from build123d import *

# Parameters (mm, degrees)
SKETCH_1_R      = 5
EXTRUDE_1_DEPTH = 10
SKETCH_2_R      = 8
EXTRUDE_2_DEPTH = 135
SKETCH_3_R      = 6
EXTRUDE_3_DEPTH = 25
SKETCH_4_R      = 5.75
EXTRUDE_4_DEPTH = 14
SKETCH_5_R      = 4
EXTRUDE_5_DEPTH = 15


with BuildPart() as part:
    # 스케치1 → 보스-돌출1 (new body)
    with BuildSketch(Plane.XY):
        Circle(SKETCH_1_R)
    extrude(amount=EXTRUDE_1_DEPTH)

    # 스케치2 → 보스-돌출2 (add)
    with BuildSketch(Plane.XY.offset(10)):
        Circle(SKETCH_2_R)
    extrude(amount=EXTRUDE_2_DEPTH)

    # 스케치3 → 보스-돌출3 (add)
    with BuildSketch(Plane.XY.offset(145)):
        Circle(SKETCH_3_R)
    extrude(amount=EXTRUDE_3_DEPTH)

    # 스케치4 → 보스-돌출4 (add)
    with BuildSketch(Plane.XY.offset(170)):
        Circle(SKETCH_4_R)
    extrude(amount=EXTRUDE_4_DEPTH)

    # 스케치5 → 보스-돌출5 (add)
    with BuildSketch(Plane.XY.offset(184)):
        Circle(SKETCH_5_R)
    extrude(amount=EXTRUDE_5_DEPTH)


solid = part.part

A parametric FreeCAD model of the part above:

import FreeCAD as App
import Part
import Sketcher
Q = App.Units.Quantity

doc = App.newDocument("Part")
params = doc.addObject("Spreadsheet::Sheet", "Params")
for row, (alias, value) in enumerate([
    ("sketch1_diameter", "10 mm"),
    ("pad1_length", "10 mm"),
    ("sketch2_diameter", "16 mm"),
    ("pad2_length", "135 mm"),
    ("sketch3_diameter", "12 mm"),
    ("pad3_length", "25 mm"),
    ("sketch4_diameter", "11.5 mm"),
    ("pad4_length", "14 mm"),
    ("sketch5_diameter", "8 mm"),
    ("pad5_length", "15 mm"),
], start=1):
    params.set(f"A{row}", alias)
    params.set(f"B{row}", "=" + value)
    params.setAlias(f"B{row}", alias)

body = doc.addObject("PartDesign::Body", "Body")

sketch1 = body.newObject("Sketcher::SketchObject", "Sketch")
sketch1.AttachmentSupport = (doc.getObject("XY_Plane"), [""])
sketch1.MapMode = "FlatFace"
sketch1.addGeometry(Part.Circle(App.Vector(0, 0, 0), App.Vector(0, 0, 1), 5), False)
sketch1.addConstraint([
    Sketcher.Constraint("Coincident", 0, 3, -1, 1),
    Sketcher.Constraint("Diameter", 0, Q("10 mm")),
])
sketch1.setExpression("Constraints[1]", "Params.sketch1_diameter")
pad1 = body.newObject("PartDesign::Pad", "Pad")
pad1.Profile = sketch1
pad1.setExpression("Length", "Params.pad1_length")

sketch2 = body.newObject("Sketcher::SketchObject", "Sketch001")
sketch2.AttachmentSupport = (doc.getObject("XY_Plane"), [""])
sketch2.MapMode = "FlatFace"
sketch2.AttachmentOffset = App.Placement(App.Vector(0, 0, 10), App.Rotation())
sketch2.addGeometry(Part.Circle(App.Vector(0, 0, 0), App.Vector(0, 0, 1), 8), False)
sketch2.addConstraint([
    Sketcher.Constraint("Coincident", 0, 3, -1, 1),
    Sketcher.Constraint("Diameter", 0, Q("16 mm")),
])
sketch2.setExpression("Constraints[1]", "Params.sketch2_diameter")
pad2 = body.newObject("PartDesign::Pad", "Pad001")
pad2.Profile = sketch2
pad2.setExpression("Length", "Params.pad2_length")

sketch3 = body.newObject("Sketcher::SketchObject", "Sketch002")
sketch3.AttachmentSupport = (doc.getObject("XY_Plane"), [""])
sketch3.MapMode = "FlatFace"
sketch3.AttachmentOffset = App.Placement(App.Vector(0, 0, 145), App.Rotation())
sketch3.addGeometry(Part.Circle(App.Vector(0, 0, 0), App.Vector(0, 0, 1), 6), False)
sketch3.addConstraint([
    Sketcher.Constraint("Coincident", 0, 3, -1, 1),
    Sketcher.Constraint("Diameter", 0, Q("12 mm")),
])
sketch3.setExpression("Constraints[1]", "Params.sketch3_diameter")
pad3 = body.newObject("PartDesign::Pad", "Pad002")
pad3.Profile = sketch3
pad3.setExpression("Length", "Params.pad3_length")

sketch4 = body.newObject("Sketcher::SketchObject", "Sketch003")
sketch4.AttachmentSupport = (doc.getObject("XY_Plane"), [""])
sketch4.MapMode = "FlatFace"
sketch4.AttachmentOffset = App.Placement(App.Vector(0, 0, 170), App.Rotation())
sketch4.addGeometry(Part.Circle(App.Vector(0, 0, 0), App.Vector(0, 0, 1), 5.75), False)
sketch4.addConstraint([
    Sketcher.Constraint("Coincident", 0, 3, -1, 1),
    Sketcher.Constraint("Diameter", 0, Q("11.5 mm")),
])
sketch4.setExpression("Constraints[1]", "Params.sketch4_diameter")
pad4 = body.newObject("PartDesign::Pad", "Pad003")
pad4.Profile = sketch4
pad4.setExpression("Length", "Params.pad4_length")

sketch5 = body.newObject("Sketcher::SketchObject", "Sketch004")
sketch5.AttachmentSupport = (doc.getObject("XY_Plane"), [""])
sketch5.MapMode = "FlatFace"
sketch5.AttachmentOffset = App.Placement(App.Vector(0, 0, 184), App.Rotation())
sketch5.addGeometry(Part.Circle(App.Vector(0, 0, 0), App.Vector(0, 0, 1), 4), False)
sketch5.addConstraint([
    Sketcher.Constraint("Coincident", 0, 3, -1, 1),
    Sketcher.Constraint("Diameter", 0, Q("8 mm")),
])
sketch5.setExpression("Constraints[1]", "Params.sketch5_diameter")
pad5 = body.newObject("PartDesign::Pad", "Pad004")
pad5.Profile = sketch5
pad5.setExpression("Length", "Params.pad5_length")

doc.recompute()
